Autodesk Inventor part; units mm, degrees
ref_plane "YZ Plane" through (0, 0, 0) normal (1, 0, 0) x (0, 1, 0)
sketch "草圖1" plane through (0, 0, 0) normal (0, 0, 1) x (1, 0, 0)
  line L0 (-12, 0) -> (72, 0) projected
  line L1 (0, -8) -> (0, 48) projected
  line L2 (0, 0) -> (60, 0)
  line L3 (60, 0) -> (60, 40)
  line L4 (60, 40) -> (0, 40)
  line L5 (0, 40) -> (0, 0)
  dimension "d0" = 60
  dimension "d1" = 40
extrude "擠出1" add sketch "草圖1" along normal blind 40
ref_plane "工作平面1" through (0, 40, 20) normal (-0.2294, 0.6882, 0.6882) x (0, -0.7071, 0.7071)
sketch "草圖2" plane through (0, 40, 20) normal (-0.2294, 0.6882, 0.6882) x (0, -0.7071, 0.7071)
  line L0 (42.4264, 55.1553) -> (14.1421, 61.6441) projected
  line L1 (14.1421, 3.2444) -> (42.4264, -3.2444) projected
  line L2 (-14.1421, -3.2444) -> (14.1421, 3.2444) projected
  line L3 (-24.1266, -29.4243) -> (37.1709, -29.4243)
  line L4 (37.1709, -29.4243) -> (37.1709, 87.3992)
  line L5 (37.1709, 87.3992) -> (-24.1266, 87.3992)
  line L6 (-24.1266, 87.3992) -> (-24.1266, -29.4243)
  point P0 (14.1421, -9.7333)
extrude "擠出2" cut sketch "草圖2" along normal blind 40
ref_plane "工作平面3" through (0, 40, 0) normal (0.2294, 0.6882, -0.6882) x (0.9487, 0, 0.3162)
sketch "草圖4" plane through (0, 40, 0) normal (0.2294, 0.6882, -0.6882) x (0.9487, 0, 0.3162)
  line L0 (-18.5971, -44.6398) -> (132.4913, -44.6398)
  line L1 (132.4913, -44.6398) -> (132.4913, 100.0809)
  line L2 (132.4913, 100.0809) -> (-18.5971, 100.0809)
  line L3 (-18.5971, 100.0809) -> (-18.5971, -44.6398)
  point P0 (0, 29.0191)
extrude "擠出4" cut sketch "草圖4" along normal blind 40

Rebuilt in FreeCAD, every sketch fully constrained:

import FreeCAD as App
import Part
import Sketcher
Q = App.Units.Quantity

doc = App.newDocument("Part")
body = doc.addObject("PartDesign::Body", "Body")

sketch1 = body.newObject("Sketcher::SketchObject", "Sketch")
sketch1.AttachmentSupport = (doc.getObject("XY_Plane"), [""])
sketch1.MapMode = "FlatFace"
sketch1.addGeometry([
    Part.LineSegment(App.Vector(0, 40, 0), App.Vector(0, 0, 0)),
    Part.LineSegment(App.Vector(0, 0, 0), App.Vector(60, 0, 0)),
    Part.LineSegment(App.Vector(60, 0, 0), App.Vector(60, 40, 0)),
    Part.LineSegment(App.Vector(60, 40, 0), App.Vector(0, 40, 0)),
], False)
sketch1.addConstraint([
    Sketcher.Constraint("Coincident", 0, 2, 1, 1),
    Sketcher.Constraint("Coincident", 1, 2, 2, 1),
    Sketcher.Constraint("Coincident", 2, 2, 3, 1),
    Sketcher.Constraint("Coincident", 3, 2, 0, 1),
    Sketcher.Constraint("Vertical", 0),
    Sketcher.Constraint("Horizontal", 1),
    Sketcher.Constraint("Vertical", 2),
    Sketcher.Constraint("Horizontal", 3),
    Sketcher.Constraint("Coincident", 0, 2, -1, 1),
    Sketcher.Constraint("DistanceX", 1, 1, 1, 2, Q("60 mm")),
    Sketcher.Constraint("DistanceY", 0, 2, 0, 1, Q("40 mm")),
])
pad1 = body.newObject("PartDesign::Pad", "Pad")
pad1.Profile = sketch1
pad1.Length = 40

sketch2 = body.newObject("Sketcher::SketchObject", "Sketch001")
sketch2.Placement = App.Placement(App.Vector(0, 40, 20), App.Rotation(App.Vector(0, -0.707106781, 0.707106781), App.Vector(0.973328527, 0.162221421, 0.162221421), App.Vector(-0.229415734, 0.688247202, 0.688247202), "ZXY"))
sketch2.addGeometry([
    Part.LineSegment(App.Vector(-24.1266, 87.3992, 0), App.Vector(-24.1266, -29.4243, 0)),
    Part.LineSegment(App.Vector(-24.1266, -29.4243, 0), App.Vector(37.1709, -29.4243, 0)),
    Part.LineSegment(App.Vector(37.1709, -29.4243, 0), App.Vector(37.1709, 87.3992, 0)),
    Part.LineSegment(App.Vector(37.1709, 87.3992, 0), App.Vector(-24.1266, 87.3992, 0)),
], False)
sketch2.addConstraint([
    Sketcher.Constraint("Coincident", 0, 2, 1, 1),
    Sketcher.Constraint("Coincident", 1, 2, 2, 1),
    Sketcher.Constraint("Coincident", 2, 2, 3, 1),
    Sketcher.Constraint("Coincident", 3, 2, 0, 1),
    Sketcher.Constraint("Vertical", 0),
    Sketcher.Constraint("Horizontal", 1),
    Sketcher.Constraint("Vertical", 2),
    Sketcher.Constraint("Horizontal", 3),
    Sketcher.Constraint("DistanceX", 1, 1, 1, 2, Q("61.2975 mm")),
    Sketcher.Constraint("DistanceY", 0, 2, 0, 1, Q("116.8235 mm")),
    Sketcher.Constraint("DistanceX", -1, 1, 1, 2, Q("37.171 mm")),
    Sketcher.Constraint("DistanceY", 0, 2, -1, 1, Q("29.4243 mm")),
])
pocket1 = body.newObject("PartDesign::Pocket", "Pocket")
pocket1.Profile = sketch2
pocket1.Length = 40
pocket1.Reversed = True

sketch3 = body.newObject("Sketcher::SketchObject", "Sketch002")
sketch3.Placement = App.Placement(App.Vector(0, 40, 0), App.Rotation(App.Vector(0.948688035, -0.000015789, 0.316213556), App.Vector(0.217622228, -0.725476251, -0.652935508), App.Vector(0.229415734, 0.688247202, -0.688247202), "ZXY"))
sketch3.addGeometry([
    Part.LineSegment(App.Vector(-18.5971, 100.0809, 0), App.Vector(-18.5971, -44.6398, 0)),
    Part.LineSegment(App.Vector(-18.5971, -44.6398, 0), App.Vector(132.4913, -44.6398, 0)),
    Part.LineSegment(App.Vector(132.4913, -44.6398, 0), App.Vector(132.4913, 100.0809, 0)),
    Part.LineSegment(App.Vector(132.4913, 100.0809, 0), App.Vector(-18.5971, 100.0809, 0)),
], False)
sketch3.addConstraint([
    Sketcher.Constraint("Coincident", 0, 2, 1, 1),
    Sketcher.Constraint("Coincident", 1, 2, 2, 1),
    Sketcher.Constraint("Coincident", 2, 2, 3, 1),
    Sketcher.Constraint("Coincident", 3, 2, 0, 1),
    Sketcher.Constraint("Vertical", 0),
    Sketcher.Constraint("Horizontal", 1),
    Sketcher.Constraint("Vertical", 2),
    Sketcher.Constraint("Horizontal", 3),
    Sketcher.Constraint("DistanceX", 1, 1, 1, 2, Q("151.0884 mm")),
    Sketcher.Constraint("DistanceY", 0, 2, 0, 1, Q("144.7207 mm")),
    Sketcher.Constraint("DistanceX", 0, 2, -1, 1, Q("18.597 mm")),
    Sketcher.Constraint("DistanceY", -1, 1, 2, 2, Q("100.081 mm")),
])
pocket2 = body.newObject("PartDesign::Pocket", "Pocket001")
pocket2.Profile = sketch3
pocket2.Length = 40
pocket2.Reversed = True

doc.recompute()
